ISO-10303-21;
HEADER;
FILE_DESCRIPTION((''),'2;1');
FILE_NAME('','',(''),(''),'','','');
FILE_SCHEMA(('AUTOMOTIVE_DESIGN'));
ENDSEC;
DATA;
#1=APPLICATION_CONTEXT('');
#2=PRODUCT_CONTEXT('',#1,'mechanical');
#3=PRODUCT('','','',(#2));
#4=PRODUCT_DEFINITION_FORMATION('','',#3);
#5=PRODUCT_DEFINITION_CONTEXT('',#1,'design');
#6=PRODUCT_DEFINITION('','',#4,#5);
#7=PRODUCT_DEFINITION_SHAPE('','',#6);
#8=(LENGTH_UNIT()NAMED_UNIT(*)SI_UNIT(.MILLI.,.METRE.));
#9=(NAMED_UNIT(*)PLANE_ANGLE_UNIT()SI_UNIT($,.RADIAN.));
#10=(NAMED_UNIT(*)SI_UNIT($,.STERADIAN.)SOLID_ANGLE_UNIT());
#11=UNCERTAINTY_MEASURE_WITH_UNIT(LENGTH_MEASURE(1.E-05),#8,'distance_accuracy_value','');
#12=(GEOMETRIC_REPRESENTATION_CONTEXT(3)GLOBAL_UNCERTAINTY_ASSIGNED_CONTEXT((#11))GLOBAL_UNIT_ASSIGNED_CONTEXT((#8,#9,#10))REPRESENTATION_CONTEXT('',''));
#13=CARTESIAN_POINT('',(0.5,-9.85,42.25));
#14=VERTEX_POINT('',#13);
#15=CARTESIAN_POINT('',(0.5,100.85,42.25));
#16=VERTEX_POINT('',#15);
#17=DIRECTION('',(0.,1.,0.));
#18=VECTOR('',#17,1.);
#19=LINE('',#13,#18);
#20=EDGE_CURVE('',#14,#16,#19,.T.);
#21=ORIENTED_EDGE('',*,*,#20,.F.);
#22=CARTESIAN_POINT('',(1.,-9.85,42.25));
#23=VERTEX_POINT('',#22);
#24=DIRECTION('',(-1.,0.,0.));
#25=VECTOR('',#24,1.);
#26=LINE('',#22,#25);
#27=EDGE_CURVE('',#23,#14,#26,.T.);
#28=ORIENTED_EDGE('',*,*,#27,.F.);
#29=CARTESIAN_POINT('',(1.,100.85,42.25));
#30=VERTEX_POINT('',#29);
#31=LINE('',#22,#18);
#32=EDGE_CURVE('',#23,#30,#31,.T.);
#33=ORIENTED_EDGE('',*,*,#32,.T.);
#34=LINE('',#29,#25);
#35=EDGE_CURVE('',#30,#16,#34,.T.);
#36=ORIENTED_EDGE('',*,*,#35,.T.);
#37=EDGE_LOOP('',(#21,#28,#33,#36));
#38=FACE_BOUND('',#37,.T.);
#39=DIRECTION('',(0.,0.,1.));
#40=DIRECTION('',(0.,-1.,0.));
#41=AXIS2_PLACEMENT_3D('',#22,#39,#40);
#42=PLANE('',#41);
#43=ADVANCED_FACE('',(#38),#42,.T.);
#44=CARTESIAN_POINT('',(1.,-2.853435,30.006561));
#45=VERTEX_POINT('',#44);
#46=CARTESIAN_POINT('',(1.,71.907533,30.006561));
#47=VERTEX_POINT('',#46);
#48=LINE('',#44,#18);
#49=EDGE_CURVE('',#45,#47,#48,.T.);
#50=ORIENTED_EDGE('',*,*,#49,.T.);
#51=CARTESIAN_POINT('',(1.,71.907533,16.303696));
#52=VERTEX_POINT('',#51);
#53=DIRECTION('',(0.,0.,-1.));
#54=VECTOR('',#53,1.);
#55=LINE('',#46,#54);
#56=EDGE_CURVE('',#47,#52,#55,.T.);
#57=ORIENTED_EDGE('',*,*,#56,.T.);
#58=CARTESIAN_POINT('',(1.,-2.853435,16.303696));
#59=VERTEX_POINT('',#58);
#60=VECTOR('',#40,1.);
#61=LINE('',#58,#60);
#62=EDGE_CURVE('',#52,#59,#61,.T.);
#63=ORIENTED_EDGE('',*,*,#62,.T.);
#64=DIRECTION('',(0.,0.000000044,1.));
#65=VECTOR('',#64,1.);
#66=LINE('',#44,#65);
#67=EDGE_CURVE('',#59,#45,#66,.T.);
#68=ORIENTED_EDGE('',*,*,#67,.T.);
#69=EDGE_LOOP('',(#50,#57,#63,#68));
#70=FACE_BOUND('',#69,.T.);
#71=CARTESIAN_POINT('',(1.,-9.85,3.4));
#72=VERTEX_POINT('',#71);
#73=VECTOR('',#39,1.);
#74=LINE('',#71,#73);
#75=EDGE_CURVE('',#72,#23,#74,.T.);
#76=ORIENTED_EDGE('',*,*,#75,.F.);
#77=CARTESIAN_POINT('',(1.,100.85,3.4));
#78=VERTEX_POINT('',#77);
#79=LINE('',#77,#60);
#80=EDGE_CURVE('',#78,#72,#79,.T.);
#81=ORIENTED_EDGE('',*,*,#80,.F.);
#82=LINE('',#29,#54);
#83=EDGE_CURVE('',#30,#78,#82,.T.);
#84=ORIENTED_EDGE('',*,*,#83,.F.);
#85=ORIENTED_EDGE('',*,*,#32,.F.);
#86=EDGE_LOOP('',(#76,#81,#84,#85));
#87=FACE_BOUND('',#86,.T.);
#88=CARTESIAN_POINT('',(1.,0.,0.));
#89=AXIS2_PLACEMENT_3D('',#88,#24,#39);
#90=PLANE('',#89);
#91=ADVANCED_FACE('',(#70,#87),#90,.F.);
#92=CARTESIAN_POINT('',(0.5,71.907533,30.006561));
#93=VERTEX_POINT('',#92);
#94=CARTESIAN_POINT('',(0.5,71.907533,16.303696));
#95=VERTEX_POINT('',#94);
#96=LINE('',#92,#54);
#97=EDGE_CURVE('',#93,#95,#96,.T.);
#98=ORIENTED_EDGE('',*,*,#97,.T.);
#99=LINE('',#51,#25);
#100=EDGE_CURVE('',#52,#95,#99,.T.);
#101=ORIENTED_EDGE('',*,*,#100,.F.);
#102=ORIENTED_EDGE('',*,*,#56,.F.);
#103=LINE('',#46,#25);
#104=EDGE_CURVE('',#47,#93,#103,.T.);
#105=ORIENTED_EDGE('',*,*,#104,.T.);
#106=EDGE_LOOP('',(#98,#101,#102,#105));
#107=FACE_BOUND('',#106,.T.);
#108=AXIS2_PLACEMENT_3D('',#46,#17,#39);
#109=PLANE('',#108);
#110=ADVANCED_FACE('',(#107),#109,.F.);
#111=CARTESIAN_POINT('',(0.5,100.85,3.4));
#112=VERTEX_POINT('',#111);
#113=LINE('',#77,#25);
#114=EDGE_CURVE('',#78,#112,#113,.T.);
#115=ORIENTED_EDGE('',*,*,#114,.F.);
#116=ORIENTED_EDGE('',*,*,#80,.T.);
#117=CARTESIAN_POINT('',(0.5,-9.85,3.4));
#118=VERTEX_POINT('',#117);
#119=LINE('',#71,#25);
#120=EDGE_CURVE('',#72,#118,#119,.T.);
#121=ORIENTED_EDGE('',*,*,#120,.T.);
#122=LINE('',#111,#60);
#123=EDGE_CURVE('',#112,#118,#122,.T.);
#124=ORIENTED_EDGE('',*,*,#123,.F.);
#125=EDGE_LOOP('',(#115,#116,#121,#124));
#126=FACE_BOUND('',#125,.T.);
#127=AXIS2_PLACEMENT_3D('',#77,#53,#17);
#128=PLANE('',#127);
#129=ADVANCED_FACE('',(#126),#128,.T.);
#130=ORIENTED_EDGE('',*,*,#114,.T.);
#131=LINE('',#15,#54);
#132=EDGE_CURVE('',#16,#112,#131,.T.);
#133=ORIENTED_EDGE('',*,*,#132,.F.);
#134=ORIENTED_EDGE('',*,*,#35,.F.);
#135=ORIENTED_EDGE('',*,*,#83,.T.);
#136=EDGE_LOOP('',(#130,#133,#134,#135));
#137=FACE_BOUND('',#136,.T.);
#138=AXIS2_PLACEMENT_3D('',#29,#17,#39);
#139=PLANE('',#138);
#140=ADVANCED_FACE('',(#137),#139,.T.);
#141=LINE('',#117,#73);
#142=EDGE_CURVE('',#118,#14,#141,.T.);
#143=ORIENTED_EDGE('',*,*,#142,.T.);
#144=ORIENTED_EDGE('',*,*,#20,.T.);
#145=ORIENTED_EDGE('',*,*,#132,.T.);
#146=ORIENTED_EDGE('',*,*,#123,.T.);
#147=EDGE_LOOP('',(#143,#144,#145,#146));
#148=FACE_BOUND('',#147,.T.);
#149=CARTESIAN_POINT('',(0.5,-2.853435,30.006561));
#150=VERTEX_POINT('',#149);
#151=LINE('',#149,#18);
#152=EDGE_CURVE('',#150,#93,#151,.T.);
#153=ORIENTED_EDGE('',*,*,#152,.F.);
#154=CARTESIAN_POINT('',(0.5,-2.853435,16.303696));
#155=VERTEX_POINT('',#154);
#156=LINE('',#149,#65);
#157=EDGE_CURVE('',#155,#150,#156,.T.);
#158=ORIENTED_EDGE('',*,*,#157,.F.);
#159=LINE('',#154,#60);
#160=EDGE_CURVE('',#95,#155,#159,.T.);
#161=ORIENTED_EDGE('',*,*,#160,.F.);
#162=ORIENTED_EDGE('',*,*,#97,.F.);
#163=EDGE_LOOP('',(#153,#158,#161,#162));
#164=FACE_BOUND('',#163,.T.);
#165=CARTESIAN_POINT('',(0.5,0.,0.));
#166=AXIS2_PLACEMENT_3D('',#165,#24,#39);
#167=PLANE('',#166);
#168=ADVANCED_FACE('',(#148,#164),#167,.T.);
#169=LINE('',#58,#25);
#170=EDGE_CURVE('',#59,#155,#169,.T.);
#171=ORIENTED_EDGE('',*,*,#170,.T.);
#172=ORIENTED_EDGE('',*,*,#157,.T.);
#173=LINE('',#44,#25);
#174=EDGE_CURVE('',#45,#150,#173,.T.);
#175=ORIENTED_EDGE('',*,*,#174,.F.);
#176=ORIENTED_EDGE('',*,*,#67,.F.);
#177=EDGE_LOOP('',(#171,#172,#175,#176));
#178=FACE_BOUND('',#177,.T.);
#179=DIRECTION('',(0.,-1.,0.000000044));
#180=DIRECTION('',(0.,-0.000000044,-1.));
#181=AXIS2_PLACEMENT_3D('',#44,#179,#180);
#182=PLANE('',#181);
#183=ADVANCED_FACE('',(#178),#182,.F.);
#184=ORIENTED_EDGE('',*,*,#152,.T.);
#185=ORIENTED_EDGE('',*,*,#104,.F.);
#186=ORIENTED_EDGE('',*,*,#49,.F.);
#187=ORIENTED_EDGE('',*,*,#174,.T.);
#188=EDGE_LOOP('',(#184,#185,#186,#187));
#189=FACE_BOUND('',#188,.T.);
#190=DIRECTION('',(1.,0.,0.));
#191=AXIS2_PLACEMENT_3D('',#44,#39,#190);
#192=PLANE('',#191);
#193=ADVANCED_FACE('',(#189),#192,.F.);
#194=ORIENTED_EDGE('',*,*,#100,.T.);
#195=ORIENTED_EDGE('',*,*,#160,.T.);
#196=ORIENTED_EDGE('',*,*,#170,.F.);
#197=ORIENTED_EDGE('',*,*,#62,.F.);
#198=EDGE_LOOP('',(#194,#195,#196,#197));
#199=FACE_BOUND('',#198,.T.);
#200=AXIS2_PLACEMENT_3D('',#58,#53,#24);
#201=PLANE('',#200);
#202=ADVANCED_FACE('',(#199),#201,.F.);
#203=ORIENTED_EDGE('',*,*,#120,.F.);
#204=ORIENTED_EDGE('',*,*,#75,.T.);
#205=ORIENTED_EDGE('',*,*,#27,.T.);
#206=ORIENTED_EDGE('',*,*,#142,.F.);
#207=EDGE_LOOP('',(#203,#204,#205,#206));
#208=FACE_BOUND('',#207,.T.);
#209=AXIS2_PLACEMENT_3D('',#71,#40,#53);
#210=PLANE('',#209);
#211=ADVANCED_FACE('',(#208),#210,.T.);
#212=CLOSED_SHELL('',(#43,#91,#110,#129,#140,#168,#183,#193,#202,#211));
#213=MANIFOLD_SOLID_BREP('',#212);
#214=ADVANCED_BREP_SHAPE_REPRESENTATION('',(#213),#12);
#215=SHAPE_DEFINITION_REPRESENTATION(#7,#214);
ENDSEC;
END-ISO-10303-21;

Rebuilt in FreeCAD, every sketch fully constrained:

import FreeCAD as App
import Part
import Sketcher

V = App.Vector

doc = App.newDocument("Part")
body = doc.addObject("PartDesign::Body", "Body")

# Sketch on YZ plane
sketch1 = doc.addObject("Sketcher::SketchObject", "Sketch")
body.addObject(sketch1)
sketch1.AttachmentSupport = (doc.YZ_Plane, [""])
sketch1.MapMode = "FlatFace"
sketch1.AttachmentOffset = App.Placement(V(0, 0, 0.5), App.Rotation())
sketch1.addGeometry([
    Part.LineSegment(V(101, 42, 0), V(101, 3, 0)),
    Part.LineSegment(V(101, 3, 0), V(-10, 3, 0)),
    Part.LineSegment(V(-10, 3, 0), V(-10, 42, 0)),
    Part.LineSegment(V(-10, 42, 0), V(101, 42, 0)),
], False)
sketch1.addConstraint([
    Sketcher.Constraint("Coincident", 0, 2, 1, 1),
    Sketcher.Constraint("Coincident", 1, 2, 2, 1),
    Sketcher.Constraint("Coincident", 2, 2, 3, 1),
    Sketcher.Constraint("Coincident", 3, 2, 0, 1),
    Sketcher.Constraint("Vertical", 0),
    Sketcher.Constraint("Horizontal", 1),
    Sketcher.Constraint("Vertical", 2),
    Sketcher.Constraint("Horizontal", 3),
    Sketcher.Constraint("DistanceX", 1, 2, 1, 1, 110.7),
    Sketcher.Constraint("DistanceY", 0, 2, 0, 1, 38.85),
    Sketcher.Constraint("DistanceY", -1, 1, 0, 2, 3.4),
    Sketcher.Constraint("DistanceX", -1, 1, 0, 2, 100.85),
])
pad1 = doc.addObject("PartDesign::Pad", "Pad")
body.addObject(pad1)
pad1.Profile = sketch1
pad1.Length = 0.5

# Sketch on YZ plane
sketch2 = doc.addObject("Sketcher::SketchObject", "Sketch001")
body.addObject(sketch2)
sketch2.AttachmentSupport = (doc.YZ_Plane, [""])
sketch2.MapMode = "FlatFace"
sketch2.AttachmentOffset = App.Placement(V(0, 0, 0.5), App.Rotation())
sketch2.addGeometry([
    Part.LineSegment(V(-3, 16, 0), V(-3, 30, 0)),
    Part.LineSegment(V(-3, 30, 0), V(72, 30, 0)),
    Part.LineSegment(V(72, 30, 0), V(72, 16, 0)),
    Part.LineSegment(V(72, 16, 0), V(-3, 16, 0)),
], False)
sketch2.addConstraint([
    Sketcher.Constraint("Coincident", 0, 2, 1, 1),
    Sketcher.Constraint("Coincident", 1, 2, 2, 1),
    Sketcher.Constraint("Coincident", 2, 2, 3, 1),
    Sketcher.Constraint("Coincident", 3, 2, 0, 1),
    Sketcher.Constraint("Vertical", 0),
    Sketcher.Constraint("Horizontal", 1),
    Sketcher.Constraint("Vertical", 2),
    Sketcher.Constraint("Horizontal", 3),
    Sketcher.Constraint("DistanceX", 3, 2, 3, 1, 74.760968),
    Sketcher.Constraint("DistanceY", 0, 1, 0, 2, 13.702866),
    Sketcher.Constraint("DistanceY", -1, 1, 0, 2, 30.006561),
    Sketcher.Constraint("DistanceX", 0, 2, -1, 1, 2.853435),
])
pocket1 = doc.addObject("PartDesign::Pocket", "Pocket")
body.addObject(pocket1)
pocket1.Profile = sketch2
pocket1.Type = "ThroughAll"
pocket1.Reversed = True

doc.recompute()
